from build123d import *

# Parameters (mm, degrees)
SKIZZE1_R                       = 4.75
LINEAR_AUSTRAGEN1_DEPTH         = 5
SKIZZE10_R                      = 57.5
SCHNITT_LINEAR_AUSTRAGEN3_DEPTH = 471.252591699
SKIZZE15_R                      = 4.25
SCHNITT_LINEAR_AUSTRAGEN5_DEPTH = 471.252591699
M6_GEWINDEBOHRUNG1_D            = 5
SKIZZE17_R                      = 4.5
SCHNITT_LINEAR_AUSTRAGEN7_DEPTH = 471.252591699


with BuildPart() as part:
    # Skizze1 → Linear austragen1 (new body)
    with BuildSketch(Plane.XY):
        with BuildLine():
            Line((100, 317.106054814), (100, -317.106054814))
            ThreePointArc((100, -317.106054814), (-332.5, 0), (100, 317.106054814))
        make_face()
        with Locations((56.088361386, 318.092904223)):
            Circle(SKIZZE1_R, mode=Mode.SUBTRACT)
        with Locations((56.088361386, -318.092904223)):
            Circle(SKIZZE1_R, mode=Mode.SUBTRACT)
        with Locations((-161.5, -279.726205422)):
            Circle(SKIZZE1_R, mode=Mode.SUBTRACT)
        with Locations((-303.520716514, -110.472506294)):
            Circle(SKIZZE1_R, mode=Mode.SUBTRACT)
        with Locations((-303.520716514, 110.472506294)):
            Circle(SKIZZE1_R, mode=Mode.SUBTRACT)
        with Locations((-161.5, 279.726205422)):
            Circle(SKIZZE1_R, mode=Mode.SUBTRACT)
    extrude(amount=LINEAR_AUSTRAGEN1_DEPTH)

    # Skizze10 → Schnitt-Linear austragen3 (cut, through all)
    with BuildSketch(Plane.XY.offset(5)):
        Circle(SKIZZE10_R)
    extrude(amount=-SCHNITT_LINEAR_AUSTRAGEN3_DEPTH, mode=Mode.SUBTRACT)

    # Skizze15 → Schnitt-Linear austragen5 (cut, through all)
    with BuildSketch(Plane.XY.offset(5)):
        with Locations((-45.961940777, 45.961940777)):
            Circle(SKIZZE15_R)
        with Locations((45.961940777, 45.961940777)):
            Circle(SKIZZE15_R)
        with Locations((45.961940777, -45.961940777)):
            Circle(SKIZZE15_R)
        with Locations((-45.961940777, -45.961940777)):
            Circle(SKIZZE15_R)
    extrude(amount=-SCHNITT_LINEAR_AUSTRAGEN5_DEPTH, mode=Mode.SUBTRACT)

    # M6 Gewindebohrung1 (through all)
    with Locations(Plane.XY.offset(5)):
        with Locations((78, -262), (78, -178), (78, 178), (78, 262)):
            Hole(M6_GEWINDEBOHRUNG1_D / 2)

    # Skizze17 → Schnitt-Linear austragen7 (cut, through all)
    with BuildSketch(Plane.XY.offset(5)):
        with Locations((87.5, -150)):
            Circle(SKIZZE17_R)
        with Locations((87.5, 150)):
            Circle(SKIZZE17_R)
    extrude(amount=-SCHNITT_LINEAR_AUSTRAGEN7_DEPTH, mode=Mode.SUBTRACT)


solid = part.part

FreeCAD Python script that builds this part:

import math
import FreeCAD as App
import Part
import Sketcher

doc = App.newDocument("Part")
params = doc.addObject("Spreadsheet::Sheet", "Params")
for row, (alias, value) in enumerate([
    ("sketch1_diameter", "9.5 mm"),
    ("sketch1_radius", "332.5 mm"),
    ("pad1_length", "5 mm"),
    ("sketch2_diameter", "115 mm"),
    ("sketch3_diameter", "8.5 mm"),
    ("sketch4_diameter", "5 mm"),
    ("hole_diameter", "5 mm"),
    ("sketch5_diameter", "9 mm"),
], start=1):
    params.set(f"A{row}", alias)
    params.set(f"B{row}", "=" + value)
    params.setAlias(f"B{row}", alias)

body = doc.addObject("PartDesign::Body", "Body")

# Sketch on XY plane
sketch1 = doc.addObject("Sketcher::SketchObject", "Sketch")
body.addObject(sketch1)
sketch1.AttachmentSupport = (doc.XY_Plane, [""])
sketch1.MapMode = "FlatFace"
sketch1.addGeometry([
    Part.LineSegment(App.Vector(100, -317.1, 0), App.Vector(100, 317.1, 0)),  # 0
    Part.ArcOfCircle(Part.Circle(App.Vector(0, 0, 0), App.Vector(0, 0, 1), 332.5), math.radians(72), math.radians(288)),  # 1
    Part.Circle(App.Vector(56.1, -318.1, 0), App.Vector(0, 0, 1), 4.8),  # 2
    Part.Circle(App.Vector(-161.5, -279.7, 0), App.Vector(0, 0, 1), 4.8),  # 3
    Part.Circle(App.Vector(-303.5, -110.5, 0), App.Vector(0, 0, 1), 4.8),  # 4
    Part.Circle(App.Vector(56.1, 318.1, 0), App.Vector(0, 0, 1), 4.8),  # 5
    Part.Circle(App.Vector(-303.5, 110.5, 0), App.Vector(0, 0, 1), 4.8),  # 6
    Part.Circle(App.Vector(-161.5, 279.7, 0), App.Vector(0, 0, 1), 4.8),  # 7
], False)
sketch1.addConstraint([
    Sketcher.Constraint("Coincident", 0, 1, 1, 2),
    Sketcher.Constraint("Coincident", 1, 1, 0, 2),
    Sketcher.Constraint("Vertical", 0),
    Sketcher.Constraint("Coincident", 1, 3, -1, 1),
    Sketcher.Constraint("Equal", 2, 3),
    Sketcher.Constraint("Equal", 3, 4),
    Sketcher.Constraint("Equal", 4, 5),
    Sketcher.Constraint("Equal", 5, 6),
    Sketcher.Constraint("Equal", 6, 7),
    Sketcher.Constraint("Symmetric", 2, 3, 5, 3, -1),
    Sketcher.Constraint("Symmetric", 4, 3, 6, 3, -1),
    Sketcher.Constraint("Symmetric", 3, 3, 7, 3, -1),
    Sketcher.Constraint("Diameter", 2, 9.5),
    Sketcher.Constraint("Radius", 1, 332.5),
    Sketcher.Constraint("DistanceX", -1, 1, 0, 1, 100.0),
    Sketcher.Constraint("DistanceX", 3, 3, -1, 1, 161.5),
    Sketcher.Constraint("DistanceY", 2, 3, 3, 3, 38.366699),
    Sketcher.Constraint("DistanceY", 3, 3, 4, 3, 169.253699),
    Sketcher.Constraint("DistanceX", -1, 1, 2, 3, 56.088361),
    Sketcher.Constraint("DistanceY", 4, 3, 5, 3, 428.565411),
    Sketcher.Constraint("DistanceX", 4, 3, -1, 1, 303.520717),
])
sketch1.setExpression("Constraints[12]", "Params.sketch1_diameter")
sketch1.setExpression("Constraints[13]", "Params.sketch1_radius")
pad1 = doc.addObject("PartDesign::Pad", "Pad")
body.addObject(pad1)
pad1.Profile = sketch1
pad1.setExpression("Length", "Params.pad1_length")

# Sketch on XY plane
sketch2 = doc.addObject("Sketcher::SketchObject", "Sketch001")
body.addObject(sketch2)
sketch2.AttachmentSupport = (doc.XY_Plane, [""])
sketch2.MapMode = "FlatFace"
sketch2.AttachmentOffset = App.Placement(App.Vector(0, 0, 5), App.Rotation())
sketch2.addGeometry(Part.Circle(App.Vector(0, 0, 0), App.Vector(0, 0, 1), 58), False)
sketch2.addConstraint([
    Sketcher.Constraint("Coincident", 0, 3, -1, 1),
    Sketcher.Constraint("Diameter", 0, 115.0),
])
sketch2.setExpression("Constraints[1]", "Params.sketch2_diameter")
pocket1 = doc.addObject("PartDesign::Pocket", "Pocket")
body.addObject(pocket1)
pocket1.Profile = sketch2
pocket1.Type = "ThroughAll"

# Sketch on XY plane
sketch3 = doc.addObject("Sketcher::SketchObject", "Sketch002")
body.addObject(sketch3)
sketch3.AttachmentSupport = (doc.XY_Plane, [""])
sketch3.MapMode = "FlatFace"
sketch3.AttachmentOffset = App.Placement(App.Vector(0, 0, 5), App.Rotation())
sketch3.addGeometry([
    Part.Circle(App.Vector(-46, 46, 0), App.Vector(0, 0, 1), 4.2),
    Part.Circle(App.Vector(46, 46, 0), App.Vector(0, 0, 1), 4.2),
    Part.Circle(App.Vector(46, -46, 0), App.Vector(0, 0, 1), 4.2),
    Part.Circle(App.Vector(-46, -46, 0), App.Vector(0, 0, 1), 4.2),
], False)
sketch3.addConstraint([
    Sketcher.Constraint("Equal", 0, 1),
    Sketcher.Constraint("Equal", 1, 2),
    Sketcher.Constraint("Equal", 2, 3),
    Sketcher.Constraint("Symmetric", 0, 3, 2, 3, -1, 1),
    Sketcher.Constraint("Symmetric", 1, 3, 3, 3, -1, 1),
    Sketcher.Constraint("Symmetric", 0, 3, 1, 3, -2),
    Sketcher.Constraint("Diameter", 0, 8.5),
    Sketcher.Constraint("DistanceX", 0, 3, -1, 1, 45.961941),
    Sketcher.Constraint("DistanceY", -1, 1, 0, 3, 45.961941),
])
sketch3.setExpression("Constraints[6]", "Params.sketch3_diameter")
pocket2 = doc.addObject("PartDesign::Pocket", "Pocket001")
body.addObject(pocket2)
pocket2.Profile = sketch3
pocket2.Type = "ThroughAll"

# Sketch on XY plane
sketch4 = doc.addObject("Sketcher::SketchObject", "Sketch003")
body.addObject(sketch4)
sketch4.AttachmentSupport = (doc.XY_Plane, [""])
sketch4.MapMode = "FlatFace"
sketch4.AttachmentOffset = App.Placement(App.Vector(0, 0, 5), App.Rotation())
sketch4.addGeometry([
    Part.Circle(App.Vector(78, -262, 0), App.Vector(0, 0, 1), 2.5),
    Part.Circle(App.Vector(78, -178, 0), App.Vector(0, 0, 1), 2.5),
    Part.Circle(App.Vector(78, 178, 0), App.Vector(0, 0, 1), 2.5),
    Part.Circle(App.Vector(78, 262, 0), App.Vector(0, 0, 1), 2.5),
], False)
sketch4.addConstraint([
    Sketcher.Constraint("Equal", 0, 1),
    Sketcher.Constraint("Equal", 1, 2),
    Sketcher.Constraint("Equal", 2, 3),
    Sketcher.Constraint("Symmetric", 1, 3, 2, 3, -1),
    Sketcher.Constraint("Symmetric", 0, 3, 3, 3, -1),
    Sketcher.Constraint("Vertical", 0, 3, 1, 3),
    Sketcher.Constraint("Diameter", 0, 5.0),
    Sketcher.Constraint("DistanceX", -1, 1, 0, 3, 78.0),
    Sketcher.Constraint("DistanceY", 0, 3, -1, 1, 262.0),
    Sketcher.Constraint("DistanceY", 1, 3, -1, 1, 178.0),
])
sketch4.setExpression("Constraints[6]", "Params.sketch4_diameter")
doc.recompute()
hole = doc.addObject("PartDesign::Hole", "Hole")
body.addObject(hole)
hole.Profile = sketch4
hole.ThreadType = "None"
hole.setExpression("Diameter", "Params.hole_diameter")
hole.DepthType = "ThroughAll"

# Sketch on XY plane
sketch5 = doc.addObject("Sketcher::SketchObject", "Sketch004")
body.addObject(sketch5)
sketch5.AttachmentSupport = (doc.XY_Plane, [""])
sketch5.MapMode = "FlatFace"
sketch5.AttachmentOffset = App.Placement(App.Vector(0, 0, 5), App.Rotation())
sketch5.addGeometry([
    Part.Circle(App.Vector(87.5, -150, 0), App.Vector(0, 0, 1), 4.5),
    Part.Circle(App.Vector(87.5, 150, 0), App.Vector(0, 0, 1), 4.5),
], False)
sketch5.addConstraint([
    Sketcher.Constraint("Equal", 0, 1),
    Sketcher.Constraint("Symmetric", 0, 3, 1, 3, -1),
    Sketcher.Constraint("Diameter", 0, 9.0),
    Sketcher.Constraint("DistanceY", 0, 3, -1, 1, 150.0),
    Sketcher.Constraint("DistanceX", -1, 1, 0, 3, 87.5),
])
sketch5.setExpression("Constraints[2]", "Params.sketch5_diameter")
pocket3 = doc.addObject("PartDesign::Pocket", "Pocket002")
body.addObject(pocket3)
pocket3.Profile = sketch5
pocket3.Type = "ThroughAll"

doc.recompute()
